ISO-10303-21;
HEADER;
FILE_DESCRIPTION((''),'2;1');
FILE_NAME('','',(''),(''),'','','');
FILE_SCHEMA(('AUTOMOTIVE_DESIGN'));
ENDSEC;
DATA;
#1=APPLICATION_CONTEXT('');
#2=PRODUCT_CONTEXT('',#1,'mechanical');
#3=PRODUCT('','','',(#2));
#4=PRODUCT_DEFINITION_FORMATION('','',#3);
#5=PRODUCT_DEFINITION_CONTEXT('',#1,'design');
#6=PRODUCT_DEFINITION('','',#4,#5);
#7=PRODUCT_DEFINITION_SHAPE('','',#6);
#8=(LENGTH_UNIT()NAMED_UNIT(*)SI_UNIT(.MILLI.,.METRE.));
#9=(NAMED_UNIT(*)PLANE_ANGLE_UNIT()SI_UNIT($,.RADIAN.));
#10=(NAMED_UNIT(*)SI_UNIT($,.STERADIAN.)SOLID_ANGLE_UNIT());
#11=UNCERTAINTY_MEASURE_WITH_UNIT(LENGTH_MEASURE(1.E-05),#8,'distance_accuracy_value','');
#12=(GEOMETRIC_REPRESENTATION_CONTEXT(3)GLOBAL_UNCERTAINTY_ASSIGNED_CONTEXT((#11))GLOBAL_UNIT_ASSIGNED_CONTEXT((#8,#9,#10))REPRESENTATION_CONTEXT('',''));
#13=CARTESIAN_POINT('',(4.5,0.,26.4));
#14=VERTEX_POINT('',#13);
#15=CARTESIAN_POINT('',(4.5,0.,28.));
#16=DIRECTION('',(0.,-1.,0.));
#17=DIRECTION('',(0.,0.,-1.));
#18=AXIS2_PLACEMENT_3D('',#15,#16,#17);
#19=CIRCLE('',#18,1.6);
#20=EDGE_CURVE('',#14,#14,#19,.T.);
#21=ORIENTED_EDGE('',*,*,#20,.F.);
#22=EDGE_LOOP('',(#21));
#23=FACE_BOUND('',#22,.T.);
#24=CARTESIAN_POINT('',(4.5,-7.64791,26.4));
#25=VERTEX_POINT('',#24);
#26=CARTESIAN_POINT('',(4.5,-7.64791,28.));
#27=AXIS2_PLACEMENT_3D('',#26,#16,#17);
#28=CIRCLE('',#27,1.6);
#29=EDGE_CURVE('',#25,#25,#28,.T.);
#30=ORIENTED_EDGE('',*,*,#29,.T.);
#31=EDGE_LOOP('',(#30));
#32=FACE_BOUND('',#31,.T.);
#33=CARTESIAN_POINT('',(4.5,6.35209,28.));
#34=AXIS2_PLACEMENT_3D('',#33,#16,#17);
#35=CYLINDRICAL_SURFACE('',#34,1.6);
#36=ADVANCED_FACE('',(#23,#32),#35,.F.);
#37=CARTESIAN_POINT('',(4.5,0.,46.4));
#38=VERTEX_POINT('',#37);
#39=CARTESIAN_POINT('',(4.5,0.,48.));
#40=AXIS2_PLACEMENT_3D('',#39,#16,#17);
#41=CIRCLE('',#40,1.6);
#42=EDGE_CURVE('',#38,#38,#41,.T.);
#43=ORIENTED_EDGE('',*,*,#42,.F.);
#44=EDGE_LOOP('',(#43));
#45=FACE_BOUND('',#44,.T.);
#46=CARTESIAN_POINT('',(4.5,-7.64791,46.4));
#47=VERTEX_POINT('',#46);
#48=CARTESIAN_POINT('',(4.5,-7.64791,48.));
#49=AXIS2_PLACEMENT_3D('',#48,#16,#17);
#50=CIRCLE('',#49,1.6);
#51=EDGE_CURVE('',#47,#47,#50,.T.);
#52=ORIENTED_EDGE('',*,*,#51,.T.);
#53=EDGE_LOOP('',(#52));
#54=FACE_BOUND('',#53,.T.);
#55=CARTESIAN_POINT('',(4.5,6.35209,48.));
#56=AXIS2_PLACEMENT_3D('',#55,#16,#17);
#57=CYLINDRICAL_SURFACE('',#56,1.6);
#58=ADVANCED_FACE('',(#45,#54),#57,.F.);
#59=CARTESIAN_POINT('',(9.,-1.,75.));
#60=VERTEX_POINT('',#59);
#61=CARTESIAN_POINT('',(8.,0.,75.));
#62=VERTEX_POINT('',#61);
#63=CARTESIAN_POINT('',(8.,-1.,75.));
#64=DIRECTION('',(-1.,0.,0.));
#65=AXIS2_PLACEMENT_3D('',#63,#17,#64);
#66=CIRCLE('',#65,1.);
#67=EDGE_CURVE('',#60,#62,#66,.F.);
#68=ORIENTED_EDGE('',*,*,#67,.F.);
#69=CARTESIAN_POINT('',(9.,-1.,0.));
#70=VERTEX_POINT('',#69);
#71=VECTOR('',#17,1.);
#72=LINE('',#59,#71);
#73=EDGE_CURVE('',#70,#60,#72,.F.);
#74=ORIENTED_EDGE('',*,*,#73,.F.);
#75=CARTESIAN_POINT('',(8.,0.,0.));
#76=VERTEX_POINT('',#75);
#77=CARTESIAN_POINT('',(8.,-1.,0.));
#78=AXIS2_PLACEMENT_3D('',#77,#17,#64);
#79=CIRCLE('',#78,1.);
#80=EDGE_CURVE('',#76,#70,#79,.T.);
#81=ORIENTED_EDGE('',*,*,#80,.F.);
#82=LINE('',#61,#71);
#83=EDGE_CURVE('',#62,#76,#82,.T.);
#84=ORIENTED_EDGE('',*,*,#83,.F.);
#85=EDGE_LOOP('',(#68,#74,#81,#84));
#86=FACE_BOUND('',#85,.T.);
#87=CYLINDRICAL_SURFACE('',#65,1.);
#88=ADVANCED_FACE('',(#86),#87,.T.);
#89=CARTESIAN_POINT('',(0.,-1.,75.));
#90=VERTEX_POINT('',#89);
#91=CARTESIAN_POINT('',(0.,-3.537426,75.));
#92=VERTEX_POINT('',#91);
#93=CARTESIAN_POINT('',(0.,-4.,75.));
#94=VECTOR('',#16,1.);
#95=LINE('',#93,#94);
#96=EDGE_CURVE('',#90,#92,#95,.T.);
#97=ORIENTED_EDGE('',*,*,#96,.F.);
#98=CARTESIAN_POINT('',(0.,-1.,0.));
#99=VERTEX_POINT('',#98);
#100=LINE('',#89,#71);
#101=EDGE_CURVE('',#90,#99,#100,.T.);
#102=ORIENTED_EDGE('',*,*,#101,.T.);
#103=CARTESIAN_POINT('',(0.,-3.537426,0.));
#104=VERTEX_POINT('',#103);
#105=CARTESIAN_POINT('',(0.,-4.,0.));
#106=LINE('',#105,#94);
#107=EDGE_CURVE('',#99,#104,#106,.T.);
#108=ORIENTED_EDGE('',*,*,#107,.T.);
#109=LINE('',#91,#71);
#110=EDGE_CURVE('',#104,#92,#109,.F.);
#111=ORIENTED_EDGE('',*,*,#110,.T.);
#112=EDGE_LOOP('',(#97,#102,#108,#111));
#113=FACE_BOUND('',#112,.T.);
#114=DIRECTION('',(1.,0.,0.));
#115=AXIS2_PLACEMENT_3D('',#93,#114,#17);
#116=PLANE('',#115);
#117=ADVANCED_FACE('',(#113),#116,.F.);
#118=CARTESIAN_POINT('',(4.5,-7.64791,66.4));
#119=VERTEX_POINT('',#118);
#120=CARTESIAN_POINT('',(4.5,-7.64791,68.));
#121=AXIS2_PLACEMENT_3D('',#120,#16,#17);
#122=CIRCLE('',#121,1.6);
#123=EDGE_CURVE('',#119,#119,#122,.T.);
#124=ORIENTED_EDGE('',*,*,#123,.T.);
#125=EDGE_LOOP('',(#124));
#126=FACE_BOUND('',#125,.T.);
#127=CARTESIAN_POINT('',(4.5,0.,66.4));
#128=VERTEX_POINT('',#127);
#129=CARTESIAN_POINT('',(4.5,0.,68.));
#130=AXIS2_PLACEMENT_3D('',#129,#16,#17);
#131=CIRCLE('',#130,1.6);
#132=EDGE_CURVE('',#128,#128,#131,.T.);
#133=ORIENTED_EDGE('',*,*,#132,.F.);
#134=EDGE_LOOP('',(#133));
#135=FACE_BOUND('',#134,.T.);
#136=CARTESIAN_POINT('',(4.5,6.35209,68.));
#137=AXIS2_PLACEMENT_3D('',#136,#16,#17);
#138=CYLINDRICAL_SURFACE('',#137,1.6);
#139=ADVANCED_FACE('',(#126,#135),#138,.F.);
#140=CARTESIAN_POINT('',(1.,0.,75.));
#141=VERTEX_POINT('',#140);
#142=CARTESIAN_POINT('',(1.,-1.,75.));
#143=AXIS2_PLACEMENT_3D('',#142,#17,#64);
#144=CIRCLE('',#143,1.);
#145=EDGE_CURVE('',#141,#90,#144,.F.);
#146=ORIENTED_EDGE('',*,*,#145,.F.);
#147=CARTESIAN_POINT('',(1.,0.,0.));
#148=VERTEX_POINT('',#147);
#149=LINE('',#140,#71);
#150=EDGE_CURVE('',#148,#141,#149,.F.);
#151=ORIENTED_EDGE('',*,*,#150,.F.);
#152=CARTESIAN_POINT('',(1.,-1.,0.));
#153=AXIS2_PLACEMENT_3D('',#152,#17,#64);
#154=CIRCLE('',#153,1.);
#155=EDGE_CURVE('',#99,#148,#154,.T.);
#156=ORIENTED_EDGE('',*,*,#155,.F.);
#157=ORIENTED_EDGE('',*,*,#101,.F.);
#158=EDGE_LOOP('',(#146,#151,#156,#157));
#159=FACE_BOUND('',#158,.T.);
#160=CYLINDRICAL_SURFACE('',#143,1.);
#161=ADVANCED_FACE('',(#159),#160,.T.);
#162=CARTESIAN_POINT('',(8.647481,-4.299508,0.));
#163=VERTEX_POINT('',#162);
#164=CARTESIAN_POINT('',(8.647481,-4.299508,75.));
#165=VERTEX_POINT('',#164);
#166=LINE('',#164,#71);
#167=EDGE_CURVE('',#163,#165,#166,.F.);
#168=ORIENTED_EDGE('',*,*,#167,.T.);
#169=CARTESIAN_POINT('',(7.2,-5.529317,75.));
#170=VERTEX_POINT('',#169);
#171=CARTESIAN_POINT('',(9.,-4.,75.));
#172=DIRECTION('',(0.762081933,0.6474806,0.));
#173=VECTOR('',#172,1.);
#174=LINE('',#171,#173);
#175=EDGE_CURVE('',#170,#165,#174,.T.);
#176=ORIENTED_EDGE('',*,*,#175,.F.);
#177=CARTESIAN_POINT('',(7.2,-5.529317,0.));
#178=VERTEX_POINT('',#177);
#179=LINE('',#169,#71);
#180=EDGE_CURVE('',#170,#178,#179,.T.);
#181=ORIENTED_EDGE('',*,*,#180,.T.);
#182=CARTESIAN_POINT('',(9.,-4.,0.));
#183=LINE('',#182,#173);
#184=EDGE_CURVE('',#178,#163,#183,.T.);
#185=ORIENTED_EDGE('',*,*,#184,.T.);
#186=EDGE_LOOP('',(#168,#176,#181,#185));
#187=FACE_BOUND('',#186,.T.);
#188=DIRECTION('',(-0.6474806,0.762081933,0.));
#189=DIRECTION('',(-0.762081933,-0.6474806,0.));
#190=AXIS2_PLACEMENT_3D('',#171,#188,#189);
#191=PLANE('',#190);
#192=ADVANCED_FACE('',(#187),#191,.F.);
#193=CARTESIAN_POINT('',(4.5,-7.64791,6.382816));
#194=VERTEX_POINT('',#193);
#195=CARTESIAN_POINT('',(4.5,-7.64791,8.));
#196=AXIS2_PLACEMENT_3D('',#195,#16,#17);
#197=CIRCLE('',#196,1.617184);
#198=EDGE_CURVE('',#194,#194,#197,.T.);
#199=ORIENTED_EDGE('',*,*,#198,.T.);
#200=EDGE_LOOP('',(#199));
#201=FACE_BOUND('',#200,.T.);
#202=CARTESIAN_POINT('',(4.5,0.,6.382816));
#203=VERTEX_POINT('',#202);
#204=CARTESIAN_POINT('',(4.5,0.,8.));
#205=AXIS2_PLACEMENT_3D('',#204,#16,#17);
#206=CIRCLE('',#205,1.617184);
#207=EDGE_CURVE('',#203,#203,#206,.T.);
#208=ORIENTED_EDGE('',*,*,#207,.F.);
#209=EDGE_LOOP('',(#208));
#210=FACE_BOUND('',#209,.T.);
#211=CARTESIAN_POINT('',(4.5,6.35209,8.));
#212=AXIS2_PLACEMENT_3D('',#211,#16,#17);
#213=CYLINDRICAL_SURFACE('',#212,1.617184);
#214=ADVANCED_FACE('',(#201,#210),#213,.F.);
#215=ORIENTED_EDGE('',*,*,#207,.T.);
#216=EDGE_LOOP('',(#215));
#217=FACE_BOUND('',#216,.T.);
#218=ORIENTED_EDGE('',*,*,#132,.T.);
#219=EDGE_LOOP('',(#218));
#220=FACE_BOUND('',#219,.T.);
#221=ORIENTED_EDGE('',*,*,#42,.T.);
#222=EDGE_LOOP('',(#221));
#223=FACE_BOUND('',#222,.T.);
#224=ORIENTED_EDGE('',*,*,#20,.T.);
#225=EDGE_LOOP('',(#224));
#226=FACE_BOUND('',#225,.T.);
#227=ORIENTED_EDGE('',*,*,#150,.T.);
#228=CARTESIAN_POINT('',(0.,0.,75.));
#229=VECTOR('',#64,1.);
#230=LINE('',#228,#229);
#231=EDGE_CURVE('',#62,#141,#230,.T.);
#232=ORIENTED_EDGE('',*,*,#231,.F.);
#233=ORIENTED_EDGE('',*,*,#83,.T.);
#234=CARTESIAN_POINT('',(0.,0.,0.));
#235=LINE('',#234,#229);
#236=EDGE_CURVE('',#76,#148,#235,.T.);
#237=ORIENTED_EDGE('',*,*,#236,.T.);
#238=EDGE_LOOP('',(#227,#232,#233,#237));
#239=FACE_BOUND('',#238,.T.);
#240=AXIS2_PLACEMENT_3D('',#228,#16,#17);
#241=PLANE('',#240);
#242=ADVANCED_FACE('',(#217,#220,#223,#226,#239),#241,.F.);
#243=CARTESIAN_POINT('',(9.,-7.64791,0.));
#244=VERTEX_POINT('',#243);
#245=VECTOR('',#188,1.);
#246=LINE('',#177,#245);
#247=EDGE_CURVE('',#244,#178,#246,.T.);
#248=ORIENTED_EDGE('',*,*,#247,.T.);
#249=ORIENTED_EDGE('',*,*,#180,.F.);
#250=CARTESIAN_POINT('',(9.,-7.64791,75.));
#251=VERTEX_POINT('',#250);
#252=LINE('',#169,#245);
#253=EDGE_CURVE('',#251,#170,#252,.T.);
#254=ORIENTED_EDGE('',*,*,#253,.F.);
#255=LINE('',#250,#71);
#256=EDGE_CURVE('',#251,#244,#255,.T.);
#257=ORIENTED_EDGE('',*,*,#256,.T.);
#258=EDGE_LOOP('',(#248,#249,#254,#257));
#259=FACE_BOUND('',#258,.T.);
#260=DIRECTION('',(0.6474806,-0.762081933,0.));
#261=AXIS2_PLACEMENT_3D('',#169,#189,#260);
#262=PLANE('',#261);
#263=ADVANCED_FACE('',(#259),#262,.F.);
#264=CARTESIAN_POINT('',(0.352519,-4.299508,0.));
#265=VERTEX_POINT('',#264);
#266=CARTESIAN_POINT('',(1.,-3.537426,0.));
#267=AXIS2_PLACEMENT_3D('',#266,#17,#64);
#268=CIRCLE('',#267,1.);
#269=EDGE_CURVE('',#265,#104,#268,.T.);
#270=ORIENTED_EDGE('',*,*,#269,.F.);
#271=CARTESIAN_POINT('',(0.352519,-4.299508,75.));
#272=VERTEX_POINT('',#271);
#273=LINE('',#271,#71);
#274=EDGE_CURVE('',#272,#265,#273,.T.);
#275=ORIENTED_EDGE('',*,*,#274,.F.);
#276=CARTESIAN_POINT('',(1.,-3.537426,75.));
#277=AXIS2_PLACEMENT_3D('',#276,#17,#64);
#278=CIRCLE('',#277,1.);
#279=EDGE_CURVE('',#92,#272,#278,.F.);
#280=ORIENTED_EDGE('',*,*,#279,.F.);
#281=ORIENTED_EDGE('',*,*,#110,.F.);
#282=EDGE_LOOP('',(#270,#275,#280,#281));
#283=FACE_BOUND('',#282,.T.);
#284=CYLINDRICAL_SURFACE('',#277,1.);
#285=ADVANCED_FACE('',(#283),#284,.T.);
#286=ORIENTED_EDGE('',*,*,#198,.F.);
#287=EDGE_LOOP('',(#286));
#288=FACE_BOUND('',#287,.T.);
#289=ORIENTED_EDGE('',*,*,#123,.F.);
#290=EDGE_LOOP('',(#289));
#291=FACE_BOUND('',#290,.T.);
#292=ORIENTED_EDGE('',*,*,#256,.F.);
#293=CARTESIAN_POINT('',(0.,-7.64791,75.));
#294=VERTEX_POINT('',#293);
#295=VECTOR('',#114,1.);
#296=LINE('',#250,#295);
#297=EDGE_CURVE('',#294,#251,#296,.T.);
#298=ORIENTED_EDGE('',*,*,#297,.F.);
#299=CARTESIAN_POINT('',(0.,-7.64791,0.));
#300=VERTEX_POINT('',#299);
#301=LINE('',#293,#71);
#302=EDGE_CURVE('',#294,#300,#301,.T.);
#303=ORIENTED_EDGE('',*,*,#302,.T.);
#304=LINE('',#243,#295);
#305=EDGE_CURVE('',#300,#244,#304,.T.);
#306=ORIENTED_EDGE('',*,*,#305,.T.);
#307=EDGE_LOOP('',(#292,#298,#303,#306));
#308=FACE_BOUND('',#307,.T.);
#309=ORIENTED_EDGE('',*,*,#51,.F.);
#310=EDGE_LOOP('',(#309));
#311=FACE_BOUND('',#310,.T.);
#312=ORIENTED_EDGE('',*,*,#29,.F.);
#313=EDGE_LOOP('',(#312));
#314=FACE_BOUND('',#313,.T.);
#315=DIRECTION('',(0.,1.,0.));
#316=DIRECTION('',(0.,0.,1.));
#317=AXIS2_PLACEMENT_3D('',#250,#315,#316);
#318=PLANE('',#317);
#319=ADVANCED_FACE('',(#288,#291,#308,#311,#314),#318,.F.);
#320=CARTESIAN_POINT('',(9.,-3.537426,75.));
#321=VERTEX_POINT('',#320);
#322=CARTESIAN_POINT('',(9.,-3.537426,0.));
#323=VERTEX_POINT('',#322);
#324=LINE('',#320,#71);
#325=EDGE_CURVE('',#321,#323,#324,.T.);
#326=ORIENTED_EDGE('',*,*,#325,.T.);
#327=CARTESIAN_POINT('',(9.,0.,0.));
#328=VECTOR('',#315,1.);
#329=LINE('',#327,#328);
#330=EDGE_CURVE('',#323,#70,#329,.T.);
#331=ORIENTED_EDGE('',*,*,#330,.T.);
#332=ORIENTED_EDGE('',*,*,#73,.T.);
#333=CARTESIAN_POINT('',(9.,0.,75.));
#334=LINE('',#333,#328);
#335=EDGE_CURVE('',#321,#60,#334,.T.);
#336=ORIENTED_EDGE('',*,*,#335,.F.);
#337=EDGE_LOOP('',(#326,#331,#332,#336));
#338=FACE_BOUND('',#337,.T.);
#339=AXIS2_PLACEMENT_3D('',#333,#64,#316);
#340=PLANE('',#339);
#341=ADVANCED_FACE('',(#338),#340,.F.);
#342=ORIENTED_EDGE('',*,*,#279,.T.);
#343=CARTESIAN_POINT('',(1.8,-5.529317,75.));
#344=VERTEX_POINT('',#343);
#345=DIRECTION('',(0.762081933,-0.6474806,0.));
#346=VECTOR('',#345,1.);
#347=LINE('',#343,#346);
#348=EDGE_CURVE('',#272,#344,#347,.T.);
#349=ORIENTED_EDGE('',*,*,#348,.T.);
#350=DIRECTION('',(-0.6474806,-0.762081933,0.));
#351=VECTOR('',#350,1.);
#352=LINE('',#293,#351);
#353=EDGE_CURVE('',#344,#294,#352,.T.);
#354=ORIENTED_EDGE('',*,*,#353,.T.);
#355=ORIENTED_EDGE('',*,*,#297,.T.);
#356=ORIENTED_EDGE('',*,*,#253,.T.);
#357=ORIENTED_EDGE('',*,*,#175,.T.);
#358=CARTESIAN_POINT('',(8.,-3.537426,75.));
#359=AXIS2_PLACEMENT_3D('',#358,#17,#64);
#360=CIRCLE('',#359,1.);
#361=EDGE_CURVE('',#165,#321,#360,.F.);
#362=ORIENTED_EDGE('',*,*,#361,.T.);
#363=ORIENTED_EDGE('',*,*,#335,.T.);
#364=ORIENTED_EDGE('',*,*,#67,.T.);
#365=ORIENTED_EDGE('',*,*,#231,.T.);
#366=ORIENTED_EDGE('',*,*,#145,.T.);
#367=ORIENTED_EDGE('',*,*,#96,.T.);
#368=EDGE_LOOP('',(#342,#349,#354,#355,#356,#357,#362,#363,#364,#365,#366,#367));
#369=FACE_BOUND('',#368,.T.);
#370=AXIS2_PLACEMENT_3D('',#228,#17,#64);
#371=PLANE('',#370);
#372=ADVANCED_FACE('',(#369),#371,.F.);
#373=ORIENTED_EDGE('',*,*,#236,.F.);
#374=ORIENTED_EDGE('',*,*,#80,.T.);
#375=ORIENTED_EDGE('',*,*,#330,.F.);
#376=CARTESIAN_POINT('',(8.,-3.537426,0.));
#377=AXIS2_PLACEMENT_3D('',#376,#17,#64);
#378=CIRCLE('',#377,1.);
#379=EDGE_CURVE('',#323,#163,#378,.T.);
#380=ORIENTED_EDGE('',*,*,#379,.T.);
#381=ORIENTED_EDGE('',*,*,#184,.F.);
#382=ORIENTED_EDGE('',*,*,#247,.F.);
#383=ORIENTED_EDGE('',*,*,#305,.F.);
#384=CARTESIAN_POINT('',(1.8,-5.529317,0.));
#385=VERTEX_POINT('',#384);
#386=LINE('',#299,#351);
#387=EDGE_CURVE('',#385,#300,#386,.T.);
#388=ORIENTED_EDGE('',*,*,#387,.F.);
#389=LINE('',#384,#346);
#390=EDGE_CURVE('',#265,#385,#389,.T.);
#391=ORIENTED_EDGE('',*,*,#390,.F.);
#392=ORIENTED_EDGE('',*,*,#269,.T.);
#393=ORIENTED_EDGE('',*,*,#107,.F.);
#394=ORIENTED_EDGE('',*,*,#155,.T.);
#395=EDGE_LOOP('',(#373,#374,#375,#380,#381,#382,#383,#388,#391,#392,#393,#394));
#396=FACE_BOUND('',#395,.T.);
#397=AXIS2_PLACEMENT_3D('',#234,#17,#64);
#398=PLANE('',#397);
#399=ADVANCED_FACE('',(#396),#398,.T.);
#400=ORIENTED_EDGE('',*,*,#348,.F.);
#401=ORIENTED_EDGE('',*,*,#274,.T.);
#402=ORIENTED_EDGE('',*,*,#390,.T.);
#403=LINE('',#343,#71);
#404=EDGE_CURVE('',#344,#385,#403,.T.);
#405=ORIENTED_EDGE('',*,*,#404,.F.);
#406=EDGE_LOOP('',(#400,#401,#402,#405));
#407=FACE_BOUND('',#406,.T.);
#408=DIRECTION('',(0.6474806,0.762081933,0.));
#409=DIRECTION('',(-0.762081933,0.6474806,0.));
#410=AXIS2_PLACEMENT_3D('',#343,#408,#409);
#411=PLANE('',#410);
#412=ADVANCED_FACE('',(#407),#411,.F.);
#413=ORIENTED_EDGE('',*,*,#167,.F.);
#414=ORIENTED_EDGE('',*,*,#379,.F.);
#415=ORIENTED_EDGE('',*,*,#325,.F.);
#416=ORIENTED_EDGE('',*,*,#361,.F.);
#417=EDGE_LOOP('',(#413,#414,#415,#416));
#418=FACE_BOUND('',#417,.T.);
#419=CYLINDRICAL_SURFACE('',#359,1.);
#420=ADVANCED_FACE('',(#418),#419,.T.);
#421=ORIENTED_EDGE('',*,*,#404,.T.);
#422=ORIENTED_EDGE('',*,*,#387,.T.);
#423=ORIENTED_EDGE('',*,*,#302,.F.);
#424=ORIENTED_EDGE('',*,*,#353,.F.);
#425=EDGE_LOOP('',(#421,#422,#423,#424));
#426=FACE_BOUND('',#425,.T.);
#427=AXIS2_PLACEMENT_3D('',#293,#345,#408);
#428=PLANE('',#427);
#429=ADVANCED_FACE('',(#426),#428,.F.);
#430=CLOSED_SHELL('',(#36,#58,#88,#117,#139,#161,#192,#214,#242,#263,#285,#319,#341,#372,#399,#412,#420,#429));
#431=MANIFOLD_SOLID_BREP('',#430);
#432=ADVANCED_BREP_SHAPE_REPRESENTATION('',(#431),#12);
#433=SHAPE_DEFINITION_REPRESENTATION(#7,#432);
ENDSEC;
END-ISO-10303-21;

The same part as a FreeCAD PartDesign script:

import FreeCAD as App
import Part
import Sketcher

V = App.Vector
Q = App.Units.Quantity


def edges_at(feature, points):
    """Names of the edges that pass closest to the given points."""
    edges = feature.Shape.Edges
    near = lambda p: min(range(len(edges)), key=lambda i: edges[i].distToShape(Part.Vertex(*p))[0])
    return sorted({f"Edge{near(p) + 1}" for p in points})


def add_polygon(sketch, points):
    """Adds a closed chain of lines whose ends are joined by coincident constraints."""
    first, n = sketch.GeometryCount, len(points)
    for a, b in zip(points, points[1:] + points[:1]):
        sketch.addGeometry(Part.LineSegment(App.Vector(*a, 0), App.Vector(*b, 0)), False)
    for i in range(n):
        sketch.addConstraint(Sketcher.Constraint("Coincident", first + i, 2, first + (i + 1) % n, 1))

doc = App.newDocument("Part")
body = doc.addObject("PartDesign::Body", "Body")

sketch1 = body.newObject("Sketcher::SketchObject", "Sketch")
sketch1.AttachmentSupport = (doc.getObject("XY_Plane"), [""])
sketch1.MapMode = "FlatFace"
add_polygon(sketch1, [(9, 0), (0, 0), (0, -4), (1.8, -5.5), (0, -7.6), (9, -7.6), (7.2, -5.5), (9, -4)])
sketch1.addConstraint(Sketcher.Constraint("Horizontal", 0))
sketch1.addConstraint(Sketcher.Constraint("Vertical", 1))
sketch1.addConstraint(Sketcher.Constraint("Horizontal", 4))
sketch1.addConstraint(Sketcher.Constraint("Vertical", 7))
sketch1.addConstraint(Sketcher.Constraint("Coincident", 0, 2, -1, 1))
sketch1.addConstraint(Sketcher.Constraint("PointOnObject", 3, 2, -2))
sketch1.addConstraint(Sketcher.Constraint("Perpendicular", 2, 3))
sketch1.addConstraint(Sketcher.Constraint("Perpendicular", 5, 6))
sketch1.addConstraint(Sketcher.Constraint("Horizontal", 2, 2, 5, 2))
sketch1.addConstraint(Sketcher.Constraint("Horizontal", 1, 2, 6, 2))
sketch1.addConstraint(Sketcher.Constraint("Vertical", 4, 2, 6, 2))
sketch1.addConstraint(Sketcher.Constraint("DistanceX", 0, 2, 0, 1, Q("9 mm")))
sketch1.addConstraint(Sketcher.Constraint("DistanceY", 1, 2, 1, 1, Q("4 mm")))
sketch1.addConstraint(Sketcher.Constraint("DistanceX", -1, 1, 2, 2, Q("1.8 mm")))
sketch1.addConstraint(Sketcher.Constraint("Distance", 2, Q("2.361951 mm")))
pad1 = body.newObject("PartDesign::Pad", "Pad")
pad1.Profile = sketch1
pad1.Length = 75
doc.recompute()

fillet = body.newObject("PartDesign::Fillet", "Fillet")
fillet.Base = (pad1, edges_at(pad1, [(0, 0, 37.5), (9, 0, 37.5)]))
fillet.Radius = 1
doc.recompute()

fillet2 = body.newObject("PartDesign::Fillet", "Fillet001")
fillet2.Base = (fillet, edges_at(fillet, [(9, -4, 37.5), (0, -4, 37.5)]))
fillet2.Radius = 1

sketch2 = body.newObject("Sketcher::SketchObject", "Sketch001")
sketch2.AttachmentSupport = (doc.getObject("XZ_Plane"), [""])
sketch2.MapMode = "FlatFace"
sketch2.AttachmentOffset = App.Placement(V(0, 0, 7.64791), App.Rotation())
sketch2.addGeometry(Part.Circle(V(4.5, 68, 0), V(0, 0, 1), 1.6), False)
sketch2.addGeometry(Part.Circle(V(4.5, 48, 0), V(0, 0, 1), 1.6), False)
sketch2.addGeometry(Part.Circle(V(4.5, 28, 0), V(0, 0, 1), 1.6), False)
sketch2.addGeometry(Part.Circle(V(4.5, 8, 0), V(0, 0, 1), 1.6), False)
sketch2.addConstraint(Sketcher.Constraint("Equal", 0, 1))
sketch2.addConstraint(Sketcher.Constraint("Equal", 1, 2))
sketch2.addConstraint(Sketcher.Constraint("Vertical", 0, 3, 1, 3))
sketch2.addConstraint(Sketcher.Constraint("Vertical", 1, 3, 2, 3))
sketch2.addConstraint(Sketcher.Constraint("Vertical", 2, 3, 3, 3))
sketch2.addConstraint(Sketcher.Constraint("Diameter", 0, Q("3.2 mm")))
sketch2.addConstraint(Sketcher.Constraint("DistanceY", -1, 1, 0, 3, Q("68 mm")))
sketch2.addConstraint(Sketcher.Constraint("DistanceY", -1, 1, 1, 3, Q("48 mm")))
sketch2.addConstraint(Sketcher.Constraint("DistanceY", -1, 1, 2, 3, Q("28 mm")))
sketch2.addConstraint(Sketcher.Constraint("DistanceY", -1, 1, 3, 3, Q("8 mm")))
sketch2.addConstraint(Sketcher.Constraint("DistanceX", -1, 1, 0, 3, Q("4.5 mm")))
sketch2.addConstraint(Sketcher.Constraint("Diameter", 3, Q("3.234367 mm")))
pocket1 = body.newObject("PartDesign::Pocket", "Pocket")
pocket1.Profile = sketch2
pocket1.Length = 14

doc.recompute()
